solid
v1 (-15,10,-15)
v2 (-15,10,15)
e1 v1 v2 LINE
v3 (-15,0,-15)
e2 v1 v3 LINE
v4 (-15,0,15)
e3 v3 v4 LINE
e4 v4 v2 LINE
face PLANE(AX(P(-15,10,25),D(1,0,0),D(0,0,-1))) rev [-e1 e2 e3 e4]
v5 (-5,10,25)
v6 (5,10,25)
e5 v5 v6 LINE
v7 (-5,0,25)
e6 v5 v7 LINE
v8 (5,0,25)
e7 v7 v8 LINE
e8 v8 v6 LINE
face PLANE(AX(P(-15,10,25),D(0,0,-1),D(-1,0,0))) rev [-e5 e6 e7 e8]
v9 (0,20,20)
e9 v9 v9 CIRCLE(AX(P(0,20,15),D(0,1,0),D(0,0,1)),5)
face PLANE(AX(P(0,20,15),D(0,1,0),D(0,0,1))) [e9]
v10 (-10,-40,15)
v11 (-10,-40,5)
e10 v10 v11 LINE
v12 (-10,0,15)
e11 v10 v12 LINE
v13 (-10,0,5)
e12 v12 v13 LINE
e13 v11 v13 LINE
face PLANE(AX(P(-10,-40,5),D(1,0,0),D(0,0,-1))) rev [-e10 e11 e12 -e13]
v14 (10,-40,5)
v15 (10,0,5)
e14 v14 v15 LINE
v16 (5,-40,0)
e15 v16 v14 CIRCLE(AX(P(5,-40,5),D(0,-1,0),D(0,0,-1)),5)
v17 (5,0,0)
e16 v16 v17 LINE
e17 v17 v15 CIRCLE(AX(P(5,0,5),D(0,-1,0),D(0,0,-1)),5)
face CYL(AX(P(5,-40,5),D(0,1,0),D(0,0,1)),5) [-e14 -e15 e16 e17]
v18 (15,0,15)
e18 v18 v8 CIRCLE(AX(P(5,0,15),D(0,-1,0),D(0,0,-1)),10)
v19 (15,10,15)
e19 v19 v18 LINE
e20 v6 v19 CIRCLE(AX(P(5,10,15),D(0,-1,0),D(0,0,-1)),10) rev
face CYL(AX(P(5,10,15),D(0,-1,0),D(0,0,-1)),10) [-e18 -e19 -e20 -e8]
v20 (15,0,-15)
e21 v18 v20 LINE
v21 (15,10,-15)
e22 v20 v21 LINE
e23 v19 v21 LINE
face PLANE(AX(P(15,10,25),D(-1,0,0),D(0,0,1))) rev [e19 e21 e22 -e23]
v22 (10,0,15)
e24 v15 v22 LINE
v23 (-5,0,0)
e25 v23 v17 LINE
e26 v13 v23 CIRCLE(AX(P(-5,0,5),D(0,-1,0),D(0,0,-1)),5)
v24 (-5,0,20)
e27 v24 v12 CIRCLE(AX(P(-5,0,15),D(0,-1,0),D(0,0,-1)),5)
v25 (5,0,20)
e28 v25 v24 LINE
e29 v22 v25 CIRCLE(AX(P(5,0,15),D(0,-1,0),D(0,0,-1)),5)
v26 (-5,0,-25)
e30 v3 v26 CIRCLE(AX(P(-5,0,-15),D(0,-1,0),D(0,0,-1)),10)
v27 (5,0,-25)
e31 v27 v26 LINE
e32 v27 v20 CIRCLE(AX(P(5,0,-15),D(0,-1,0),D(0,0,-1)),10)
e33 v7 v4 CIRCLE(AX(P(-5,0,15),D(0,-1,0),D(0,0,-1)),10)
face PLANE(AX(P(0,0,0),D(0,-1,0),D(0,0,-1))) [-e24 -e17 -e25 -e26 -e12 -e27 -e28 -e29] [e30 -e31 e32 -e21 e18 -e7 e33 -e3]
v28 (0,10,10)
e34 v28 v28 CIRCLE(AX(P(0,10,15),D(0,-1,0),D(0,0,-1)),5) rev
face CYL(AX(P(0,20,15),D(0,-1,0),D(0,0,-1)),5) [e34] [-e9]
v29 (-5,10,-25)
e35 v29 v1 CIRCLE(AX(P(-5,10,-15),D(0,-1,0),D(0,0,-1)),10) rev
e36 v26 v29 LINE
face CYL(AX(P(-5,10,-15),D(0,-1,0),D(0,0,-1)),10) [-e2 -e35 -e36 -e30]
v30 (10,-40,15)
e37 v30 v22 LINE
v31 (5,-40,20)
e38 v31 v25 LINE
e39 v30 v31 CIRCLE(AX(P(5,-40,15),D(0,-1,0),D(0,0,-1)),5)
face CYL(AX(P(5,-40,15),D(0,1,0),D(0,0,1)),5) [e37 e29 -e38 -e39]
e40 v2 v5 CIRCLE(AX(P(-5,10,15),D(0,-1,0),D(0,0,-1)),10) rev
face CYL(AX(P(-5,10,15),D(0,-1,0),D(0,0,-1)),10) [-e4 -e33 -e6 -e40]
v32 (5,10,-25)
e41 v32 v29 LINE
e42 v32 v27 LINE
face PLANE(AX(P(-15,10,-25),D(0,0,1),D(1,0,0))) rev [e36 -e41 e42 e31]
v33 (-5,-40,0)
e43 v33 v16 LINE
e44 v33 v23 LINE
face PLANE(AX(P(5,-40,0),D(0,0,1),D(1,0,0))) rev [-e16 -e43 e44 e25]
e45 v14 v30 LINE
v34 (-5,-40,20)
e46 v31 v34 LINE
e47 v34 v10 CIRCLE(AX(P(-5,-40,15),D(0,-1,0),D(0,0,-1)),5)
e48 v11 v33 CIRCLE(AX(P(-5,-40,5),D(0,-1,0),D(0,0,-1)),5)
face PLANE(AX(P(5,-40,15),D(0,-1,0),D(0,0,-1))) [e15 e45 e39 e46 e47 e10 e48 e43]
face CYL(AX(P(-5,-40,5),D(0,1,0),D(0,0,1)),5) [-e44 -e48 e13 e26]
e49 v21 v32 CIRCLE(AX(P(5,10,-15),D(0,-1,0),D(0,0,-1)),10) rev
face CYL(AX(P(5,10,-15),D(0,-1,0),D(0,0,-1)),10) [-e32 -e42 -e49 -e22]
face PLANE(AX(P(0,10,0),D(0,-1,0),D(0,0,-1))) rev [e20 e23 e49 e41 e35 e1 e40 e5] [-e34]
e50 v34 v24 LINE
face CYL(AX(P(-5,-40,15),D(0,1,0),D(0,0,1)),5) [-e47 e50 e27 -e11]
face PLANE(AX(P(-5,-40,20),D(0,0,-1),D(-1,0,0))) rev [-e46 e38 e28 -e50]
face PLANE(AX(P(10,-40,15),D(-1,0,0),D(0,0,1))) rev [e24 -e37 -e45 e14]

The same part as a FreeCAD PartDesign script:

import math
import FreeCAD as App
import Part
import Sketcher
from FreeCAD import Vector


def edges_at(feature, points):
    """Names of the edges that pass closest to the given points."""
    edges = feature.Shape.Edges
    near = lambda p: min(range(len(edges)), key=lambda i: edges[i].distToShape(Part.Vertex(*p))[0])
    return sorted({f"Edge{near(p) + 1}" for p in points})


def add_polygon(sketch, points):
    """Adds a closed chain of lines whose ends are joined by coincident constraints."""
    first, n = sketch.GeometryCount, len(points)
    for a, b in zip(points, points[1:] + points[:1]):
        sketch.addGeometry(Part.LineSegment(App.Vector(*a, 0), App.Vector(*b, 0)), False)
    for i in range(n):
        sketch.addConstraint(Sketcher.Constraint("Coincident", first + i, 2, first + (i + 1) % n, 1))

doc = App.newDocument("Part")
params = doc.addObject("Spreadsheet::Sheet", "Params")
for row, (alias, value) in enumerate([
    ("sketch1_width", "30 mm"),
    ("sketch1_height", "50 mm"),
    ("pad1_length", "10 mm"),
    ("sketch2_diameter", "10 mm"),
    ("pad2_length", "10 mm"),
    ("fillet_radius", "10 mm"),
    ("fillet2_radius", "10 mm"),
    ("sketch3_radius", "5 mm"),
    ("sketch3_width", "10 mm"),
    ("pad3_length", "40 mm"),
], start=1):
    params.set(f"A{row}", alias)
    params.set(f"B{row}", "=" + value)
    params.setAlias(f"B{row}", alias)

body = doc.addObject("PartDesign::Body", "Body")

# Sketch on XZ plane
sketch1 = doc.addObject("Sketcher::SketchObject", "Sketch")
body.addObject(sketch1)
sketch1.AttachmentSupport = (doc.XZ_Plane, [""])
sketch1.MapMode = "FlatFace"
add_polygon(sketch1, [(-15, -25), (-15, 25), (15, 25), (15, -25)])  # lines 0-3
sketch1.addConstraint(Sketcher.Constraint("Vertical", 0))
sketch1.addConstraint(Sketcher.Constraint("Horizontal", 1))
sketch1.addConstraint(Sketcher.Constraint("Vertical", 2))
sketch1.addConstraint(Sketcher.Constraint("Horizontal", 3))
sketch1.addConstraint(Sketcher.Constraint("Symmetric", 0, 2, 2, 2, -1, 1))
sketch1.addConstraint(Sketcher.Constraint("DistanceX", 1, 1, 1, 2, 30.0))
sketch1.addConstraint(Sketcher.Constraint("DistanceY", 0, 1, 0, 2, 50.0))
sketch1.setExpression("Constraints[9]", "Params.sketch1_width")
sketch1.setExpression("Constraints[10]", "Params.sketch1_height")
pad1 = doc.addObject("PartDesign::Pad", "Pad")
body.addObject(pad1)
pad1.Profile = sketch1
pad1.setExpression("Length", "Params.pad1_length")
pad1.Reversed = True

# Sketch on XZ plane
sketch2 = doc.addObject("Sketcher::SketchObject", "Sketch001")
body.addObject(sketch2)
sketch2.AttachmentSupport = (doc.XZ_Plane, [""])
sketch2.MapMode = "FlatFace"
sketch2.AttachmentOffset = App.Placement(Vector(0, 0, -10), App.Rotation())
sketch2.addGeometry(Part.Circle(Vector(0, 15, 0), Vector(0, 0, 1), 5), False)
sketch2.addConstraint(Sketcher.Constraint("PointOnObject", 0, 3, -2))
sketch2.addConstraint(Sketcher.Constraint("Diameter", 0, 10.0))
sketch2.addConstraint(Sketcher.Constraint("DistanceY", -1, 1, 0, 3, 15.0))
sketch2.setExpression("Constraints[1]", "Params.sketch2_diameter")
pad2 = doc.addObject("PartDesign::Pad", "Pad001")
body.addObject(pad2)
pad2.Profile = sketch2
pad2.setExpression("Length", "Params.pad2_length")
pad2.Reversed = True
doc.recompute()

fillet = doc.addObject("PartDesign::Fillet", "Fillet")
body.addObject(fillet)
fillet.Base = (pad2, edges_at(pad2, [(-15, 5, -25), (15, 5, -25)]))
fillet.setExpression("Radius", "Params.fillet_radius")
doc.recompute()

fillet2 = doc.addObject("PartDesign::Fillet", "Fillet001")
body.addObject(fillet2)
fillet2.Base = (fillet, edges_at(fillet, [(15, 5, 25), (-15, 5, 25)]))
fillet2.setExpression("Radius", "Params.fillet2_radius")

# Sketch on XZ plane
sketch3 = doc.addObject("Sketcher::SketchObject", "Sketch002")
body.addObject(sketch3)
sketch3.AttachmentSupport = (doc.XZ_Plane, [""])
sketch3.MapMode = "FlatFace"
sketch3.addGeometry(Part.LineSegment(Vector(10, 5, 0), Vector(10, 15, 0)), False)
sketch3.addGeometry(Part.ArcOfCircle(Part.Circle(Vector(5, 15, 0), Vector(0, 0, 1), 5), math.radians(0), math.radians(90)), False)
sketch3.addGeometry(Part.LineSegment(Vector(5, 20, 0), Vector(-5, 20, 0)), False)
sketch3.addGeometry(Part.ArcOfCircle(Part.Circle(Vector(-5, 15, 0), Vector(0, 0, 1), 5), math.radians(90), math.radians(180)), False)
sketch3.addGeometry(Part.LineSegment(Vector(-10, 15, 0), Vector(-10, 5, 0)), False)
sketch3.addGeometry(Part.ArcOfCircle(Part.Circle(Vector(-5, 5, 0), Vector(0, 0, 1), 5), math.radians(180), math.radians(270)), False)
sketch3.addGeometry(Part.LineSegment(Vector(-5, 0, 0), Vector(5, 0, 0)), False)
sketch3.addGeometry(Part.ArcOfCircle(Part.Circle(Vector(5, 5, 0), Vector(0, 0, 1), 5), math.radians(-90), math.radians(0)), False)
sketch3.addConstraint(Sketcher.Constraint("Tangent", 0, 2, 1, 1))
sketch3.addConstraint(Sketcher.Constraint("Tangent", 1, 2, 2, 1))
sketch3.addConstraint(Sketcher.Constraint("Tangent", 2, 2, 3, 1))
sketch3.addConstraint(Sketcher.Constraint("Tangent", 3, 2, 4, 1))
sketch3.addConstraint(Sketcher.Constraint("Tangent", 4, 2, 5, 1))
sketch3.addConstraint(Sketcher.Constraint("Tangent", 5, 2, 6, 1))
sketch3.addConstraint(Sketcher.Constraint("Tangent", 6, 2, 7, 1))
sketch3.addConstraint(Sketcher.Constraint("Tangent", 7, 2, 0, 1))
sketch3.addConstraint(Sketcher.Constraint("Vertical", 0))
sketch3.addConstraint(Sketcher.Constraint("Horizontal", 2))
sketch3.addConstraint(Sketcher.Constraint("Vertical", 4))
sketch3.addConstraint(Sketcher.Constraint("Horizontal", 6))
sketch3.addConstraint(Sketcher.Constraint("Equal", 1, 3))
sketch3.addConstraint(Sketcher.Constraint("Equal", 3, 5))
sketch3.addConstraint(Sketcher.Constraint("Equal", 5, 7))
sketch3.addConstraint(Sketcher.Constraint("Symmetric", 5, 2, 6, 2, -1, 1))
sketch3.addConstraint(Sketcher.Constraint("Equal", 6, 0))
sketch3.addConstraint(Sketcher.Constraint("Radius", 1, 5.0))
sketch3.addConstraint(Sketcher.Constraint("DistanceX", 2, 2, 2, 1, 10.0))
sketch3.setExpression("Constraints[17]", "Params.sketch3_radius")
sketch3.setExpression("Constraints[18]", "Params.sketch3_width")
pad3 = doc.addObject("PartDesign::Pad", "Pad002")
body.addObject(pad3)
pad3.Profile = sketch3
pad3.setExpression("Length", "Params.pad3_length")

doc.recompute()
